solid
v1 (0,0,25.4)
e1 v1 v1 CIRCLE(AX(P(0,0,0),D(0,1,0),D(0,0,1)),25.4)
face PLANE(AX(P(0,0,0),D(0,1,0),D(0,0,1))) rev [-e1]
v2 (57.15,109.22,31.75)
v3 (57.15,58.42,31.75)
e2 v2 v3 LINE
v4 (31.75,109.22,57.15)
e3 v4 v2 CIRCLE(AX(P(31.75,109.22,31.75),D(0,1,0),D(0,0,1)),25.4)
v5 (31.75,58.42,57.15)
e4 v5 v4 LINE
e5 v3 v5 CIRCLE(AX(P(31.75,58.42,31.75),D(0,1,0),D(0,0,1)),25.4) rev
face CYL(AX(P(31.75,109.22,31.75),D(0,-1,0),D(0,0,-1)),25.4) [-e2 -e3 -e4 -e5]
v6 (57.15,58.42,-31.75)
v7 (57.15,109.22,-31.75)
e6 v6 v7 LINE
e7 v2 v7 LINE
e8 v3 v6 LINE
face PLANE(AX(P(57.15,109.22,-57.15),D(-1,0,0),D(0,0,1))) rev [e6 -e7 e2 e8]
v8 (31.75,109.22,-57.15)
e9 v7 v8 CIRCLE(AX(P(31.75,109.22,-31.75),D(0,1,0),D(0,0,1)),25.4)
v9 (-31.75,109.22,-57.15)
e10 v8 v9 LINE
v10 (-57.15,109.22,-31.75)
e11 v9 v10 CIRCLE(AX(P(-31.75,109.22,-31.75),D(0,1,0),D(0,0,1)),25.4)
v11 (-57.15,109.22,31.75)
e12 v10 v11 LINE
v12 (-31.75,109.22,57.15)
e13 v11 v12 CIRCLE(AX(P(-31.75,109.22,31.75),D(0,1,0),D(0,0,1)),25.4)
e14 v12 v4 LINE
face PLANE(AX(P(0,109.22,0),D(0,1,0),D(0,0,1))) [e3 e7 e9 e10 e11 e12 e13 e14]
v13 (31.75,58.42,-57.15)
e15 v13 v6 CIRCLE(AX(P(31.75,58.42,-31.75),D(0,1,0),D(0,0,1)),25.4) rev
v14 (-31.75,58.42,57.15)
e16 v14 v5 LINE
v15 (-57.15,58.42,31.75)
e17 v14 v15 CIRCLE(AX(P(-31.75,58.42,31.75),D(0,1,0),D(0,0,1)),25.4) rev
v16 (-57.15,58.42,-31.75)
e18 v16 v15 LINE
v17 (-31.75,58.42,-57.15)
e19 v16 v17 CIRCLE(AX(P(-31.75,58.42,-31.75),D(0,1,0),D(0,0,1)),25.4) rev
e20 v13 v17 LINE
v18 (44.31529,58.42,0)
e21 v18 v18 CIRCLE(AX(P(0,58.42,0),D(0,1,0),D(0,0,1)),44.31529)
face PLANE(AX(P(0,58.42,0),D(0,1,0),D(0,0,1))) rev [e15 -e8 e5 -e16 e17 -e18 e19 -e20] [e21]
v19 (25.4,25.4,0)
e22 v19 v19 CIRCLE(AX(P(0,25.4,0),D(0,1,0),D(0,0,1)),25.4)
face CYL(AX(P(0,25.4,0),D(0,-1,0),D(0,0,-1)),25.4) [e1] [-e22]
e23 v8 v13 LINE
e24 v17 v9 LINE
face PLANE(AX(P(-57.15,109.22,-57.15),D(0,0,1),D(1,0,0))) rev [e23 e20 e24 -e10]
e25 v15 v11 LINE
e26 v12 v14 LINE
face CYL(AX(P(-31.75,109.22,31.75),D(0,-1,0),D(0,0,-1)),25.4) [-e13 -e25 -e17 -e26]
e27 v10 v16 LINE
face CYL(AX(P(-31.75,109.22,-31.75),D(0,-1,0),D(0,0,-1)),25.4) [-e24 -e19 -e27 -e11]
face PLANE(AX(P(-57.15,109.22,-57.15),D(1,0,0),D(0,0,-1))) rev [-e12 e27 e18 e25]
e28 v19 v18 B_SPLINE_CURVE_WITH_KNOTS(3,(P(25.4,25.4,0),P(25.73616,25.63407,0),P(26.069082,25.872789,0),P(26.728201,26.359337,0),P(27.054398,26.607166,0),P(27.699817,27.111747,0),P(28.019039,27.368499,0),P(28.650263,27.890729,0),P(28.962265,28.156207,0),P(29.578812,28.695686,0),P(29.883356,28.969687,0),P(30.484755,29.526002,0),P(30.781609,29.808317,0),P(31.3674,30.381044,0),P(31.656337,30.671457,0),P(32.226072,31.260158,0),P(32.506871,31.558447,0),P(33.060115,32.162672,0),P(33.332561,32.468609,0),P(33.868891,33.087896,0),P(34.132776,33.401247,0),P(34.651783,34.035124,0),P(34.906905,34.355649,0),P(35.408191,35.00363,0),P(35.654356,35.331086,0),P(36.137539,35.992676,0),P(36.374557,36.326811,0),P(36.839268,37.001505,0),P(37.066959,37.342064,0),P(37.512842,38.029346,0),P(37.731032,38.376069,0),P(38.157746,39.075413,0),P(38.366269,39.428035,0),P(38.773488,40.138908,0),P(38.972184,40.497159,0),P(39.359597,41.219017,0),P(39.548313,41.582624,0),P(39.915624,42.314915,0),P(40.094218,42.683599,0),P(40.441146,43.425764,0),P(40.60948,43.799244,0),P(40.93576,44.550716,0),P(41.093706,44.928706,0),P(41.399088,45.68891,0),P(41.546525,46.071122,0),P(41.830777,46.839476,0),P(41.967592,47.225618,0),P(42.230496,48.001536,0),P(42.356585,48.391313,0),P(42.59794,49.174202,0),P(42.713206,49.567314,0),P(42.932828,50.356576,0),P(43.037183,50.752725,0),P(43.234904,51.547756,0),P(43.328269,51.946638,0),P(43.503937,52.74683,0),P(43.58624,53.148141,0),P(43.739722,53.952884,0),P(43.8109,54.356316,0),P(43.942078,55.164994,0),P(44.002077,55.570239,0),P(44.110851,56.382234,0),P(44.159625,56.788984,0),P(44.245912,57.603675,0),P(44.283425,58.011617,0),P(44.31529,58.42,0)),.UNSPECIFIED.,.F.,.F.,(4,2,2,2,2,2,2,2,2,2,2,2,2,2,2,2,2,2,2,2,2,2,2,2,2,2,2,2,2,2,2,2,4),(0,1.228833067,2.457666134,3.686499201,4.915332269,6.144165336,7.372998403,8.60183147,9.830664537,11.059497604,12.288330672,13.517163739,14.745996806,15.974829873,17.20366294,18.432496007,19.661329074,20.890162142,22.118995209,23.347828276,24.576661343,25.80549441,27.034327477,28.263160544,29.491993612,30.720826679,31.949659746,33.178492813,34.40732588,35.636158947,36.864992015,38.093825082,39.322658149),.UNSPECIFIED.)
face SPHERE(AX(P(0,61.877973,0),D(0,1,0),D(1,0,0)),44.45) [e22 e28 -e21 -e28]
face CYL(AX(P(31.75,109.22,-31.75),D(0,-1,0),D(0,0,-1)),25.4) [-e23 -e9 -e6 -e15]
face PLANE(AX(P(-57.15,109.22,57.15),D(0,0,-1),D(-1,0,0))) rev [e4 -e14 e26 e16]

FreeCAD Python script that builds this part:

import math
import FreeCAD as App
import Part
import Sketcher

V = App.Vector
Q = App.Units.Quantity


def edges_at(feature, points):
    """Names of the edges that pass closest to the given points."""
    edges = feature.Shape.Edges
    near = lambda p: min(range(len(edges)), key=lambda i: edges[i].distToShape(Part.Vertex(*p))[0])
    return sorted({f"Edge{near(p) + 1}" for p in points})

doc = App.newDocument("Part")
body = doc.addObject("PartDesign::Body", "Body")

sketch1 = doc.addObject("Sketcher::SketchObject", "Sketch")
body.addObject(sketch1)
sketch1.AttachmentSupport = (doc.XZ_Plane, [""])
sketch1.MapMode = "FlatFace"
sketch1.addGeometry(Part.Circle(V(0, 0, 0), V(0, 0, 1), 25), False)
sketch1.addConstraint([
    Sketcher.Constraint("Coincident", 0, 3, -1, 1),
    Sketcher.Constraint("Diameter", 0, Q("2 in")),
])
pad1 = doc.addObject("PartDesign::Pad", "Pad")
body.addObject(pad1)
pad1.Profile = sketch1
pad1.Length = Q("1 in")
pad1.Reversed = True

sketch2 = doc.addObject("Sketcher::SketchObject", "Sketch001")
body.addObject(sketch2)
sketch2.AttachmentSupport = (doc.XY_Plane, [""])
sketch2.MapMode = "FlatFace"
sketch2.addGeometry([
    Part.ArcOfCircle(Part.Circle(V(0, 62, 0), V(0, 0, 1), 44), math.radians(-90), math.radians(-55)),
    Part.ArcOfCircle(Part.Circle(V(0, 62, 0), V(0, 0, 1), 44), math.radians(-55), math.radians(0)),
    Part.ArcOfCircle(Part.Circle(V(0, 62, 0), V(0, 0, 1), 44), math.radians(0), math.radians(90)),
    Part.LineSegment(V(0, 106, 0), V(0, 17, 0)),
], False)
sketch2.addConstraint([
    Sketcher.Constraint("Tangent", 0, 2, 1, 1),
    Sketcher.Constraint("Tangent", 1, 2, 2, 1),
    Sketcher.Constraint("Coincident", 2, 2, 3, 1),
    Sketcher.Constraint("Coincident", 3, 2, 0, 1),
    Sketcher.Constraint("Vertical", 3),
    Sketcher.Constraint("Coincident", 2, 3, 0, 3),
    Sketcher.Constraint("PointOnObject", 0, 3, -2),
    Sketcher.Constraint("PointOnObject", 2, 2, -2),
    Sketcher.Constraint("Horizontal", 2, 3, 1, 2),
    Sketcher.Constraint("Radius", 0, Q("1.75 in")),
    Sketcher.Constraint("DistanceX", -1, 1, 0, 2, Q("1 in")),
    Sketcher.Constraint("DistanceY", -1, 1, 0, 2, Q("1 in")),
])
revolution = doc.addObject("PartDesign::Revolution", "Revolution")
body.addObject(revolution)
revolution.Profile = sketch2
revolution.ReferenceAxis = (sketch2, ["V_Axis"])
revolution.Angle = 360

sketch3 = doc.addObject("Sketcher::SketchObject", "Sketch002")
body.addObject(sketch3)
sketch3.AttachmentSupport = (doc.XZ_Plane, [""])
sketch3.MapMode = "FlatFace"
sketch3.AttachmentOffset = App.Placement(V(0, 0, -2.3 * 25.4), App.Rotation())
sketch3.addGeometry([
    Part.LineSegment(V(-57, -57, 0), V(-57, 57, 0)),
    Part.LineSegment(V(-57, 57, 0), V(57, 57, 0)),
    Part.LineSegment(V(57, 57, 0), V(57, -57, 0)),
    Part.LineSegment(V(57, -57, 0), V(-57, -57, 0)),
], False)
sketch3.addConstraint([
    Sketcher.Constraint("Coincident", 0, 2, 1, 1),
    Sketcher.Constraint("Coincident", 1, 2, 2, 1),
    Sketcher.Constraint("Coincident", 2, 2, 3, 1),
    Sketcher.Constraint("Coincident", 3, 2, 0, 1),
    Sketcher.Constraint("Vertical", 0),
    Sketcher.Constraint("Horizontal", 1),
    Sketcher.Constraint("Vertical", 2),
    Sketcher.Constraint("Horizontal", 3),
    Sketcher.Constraint("Symmetric", 0, 2, 2, 2, -1, 1),
    Sketcher.Constraint("Equal", 3, 0),
    Sketcher.Constraint("DistanceX", 1, 1, 1, 2, Q("4.5 in")),
])
pad2 = doc.addObject("PartDesign::Pad", "Pad001")
body.addObject(pad2)
pad2.Profile = sketch3
pad2.Length = Q("2 in")
pad2.Reversed = True
doc.recompute()

fillet = doc.addObject("PartDesign::Fillet", "Fillet")
body.addObject(fillet)
fillet.Base = (pad2, edges_at(pad2, [
    (-57.15, 83.82, 57.15),
    (57.15, 83.82, 57.15),
    (57.15, 83.82, -57.15),
    (-57.15, 83.82, -57.15),
]))
fillet.Radius = Q("1 in")

doc.recompute()
